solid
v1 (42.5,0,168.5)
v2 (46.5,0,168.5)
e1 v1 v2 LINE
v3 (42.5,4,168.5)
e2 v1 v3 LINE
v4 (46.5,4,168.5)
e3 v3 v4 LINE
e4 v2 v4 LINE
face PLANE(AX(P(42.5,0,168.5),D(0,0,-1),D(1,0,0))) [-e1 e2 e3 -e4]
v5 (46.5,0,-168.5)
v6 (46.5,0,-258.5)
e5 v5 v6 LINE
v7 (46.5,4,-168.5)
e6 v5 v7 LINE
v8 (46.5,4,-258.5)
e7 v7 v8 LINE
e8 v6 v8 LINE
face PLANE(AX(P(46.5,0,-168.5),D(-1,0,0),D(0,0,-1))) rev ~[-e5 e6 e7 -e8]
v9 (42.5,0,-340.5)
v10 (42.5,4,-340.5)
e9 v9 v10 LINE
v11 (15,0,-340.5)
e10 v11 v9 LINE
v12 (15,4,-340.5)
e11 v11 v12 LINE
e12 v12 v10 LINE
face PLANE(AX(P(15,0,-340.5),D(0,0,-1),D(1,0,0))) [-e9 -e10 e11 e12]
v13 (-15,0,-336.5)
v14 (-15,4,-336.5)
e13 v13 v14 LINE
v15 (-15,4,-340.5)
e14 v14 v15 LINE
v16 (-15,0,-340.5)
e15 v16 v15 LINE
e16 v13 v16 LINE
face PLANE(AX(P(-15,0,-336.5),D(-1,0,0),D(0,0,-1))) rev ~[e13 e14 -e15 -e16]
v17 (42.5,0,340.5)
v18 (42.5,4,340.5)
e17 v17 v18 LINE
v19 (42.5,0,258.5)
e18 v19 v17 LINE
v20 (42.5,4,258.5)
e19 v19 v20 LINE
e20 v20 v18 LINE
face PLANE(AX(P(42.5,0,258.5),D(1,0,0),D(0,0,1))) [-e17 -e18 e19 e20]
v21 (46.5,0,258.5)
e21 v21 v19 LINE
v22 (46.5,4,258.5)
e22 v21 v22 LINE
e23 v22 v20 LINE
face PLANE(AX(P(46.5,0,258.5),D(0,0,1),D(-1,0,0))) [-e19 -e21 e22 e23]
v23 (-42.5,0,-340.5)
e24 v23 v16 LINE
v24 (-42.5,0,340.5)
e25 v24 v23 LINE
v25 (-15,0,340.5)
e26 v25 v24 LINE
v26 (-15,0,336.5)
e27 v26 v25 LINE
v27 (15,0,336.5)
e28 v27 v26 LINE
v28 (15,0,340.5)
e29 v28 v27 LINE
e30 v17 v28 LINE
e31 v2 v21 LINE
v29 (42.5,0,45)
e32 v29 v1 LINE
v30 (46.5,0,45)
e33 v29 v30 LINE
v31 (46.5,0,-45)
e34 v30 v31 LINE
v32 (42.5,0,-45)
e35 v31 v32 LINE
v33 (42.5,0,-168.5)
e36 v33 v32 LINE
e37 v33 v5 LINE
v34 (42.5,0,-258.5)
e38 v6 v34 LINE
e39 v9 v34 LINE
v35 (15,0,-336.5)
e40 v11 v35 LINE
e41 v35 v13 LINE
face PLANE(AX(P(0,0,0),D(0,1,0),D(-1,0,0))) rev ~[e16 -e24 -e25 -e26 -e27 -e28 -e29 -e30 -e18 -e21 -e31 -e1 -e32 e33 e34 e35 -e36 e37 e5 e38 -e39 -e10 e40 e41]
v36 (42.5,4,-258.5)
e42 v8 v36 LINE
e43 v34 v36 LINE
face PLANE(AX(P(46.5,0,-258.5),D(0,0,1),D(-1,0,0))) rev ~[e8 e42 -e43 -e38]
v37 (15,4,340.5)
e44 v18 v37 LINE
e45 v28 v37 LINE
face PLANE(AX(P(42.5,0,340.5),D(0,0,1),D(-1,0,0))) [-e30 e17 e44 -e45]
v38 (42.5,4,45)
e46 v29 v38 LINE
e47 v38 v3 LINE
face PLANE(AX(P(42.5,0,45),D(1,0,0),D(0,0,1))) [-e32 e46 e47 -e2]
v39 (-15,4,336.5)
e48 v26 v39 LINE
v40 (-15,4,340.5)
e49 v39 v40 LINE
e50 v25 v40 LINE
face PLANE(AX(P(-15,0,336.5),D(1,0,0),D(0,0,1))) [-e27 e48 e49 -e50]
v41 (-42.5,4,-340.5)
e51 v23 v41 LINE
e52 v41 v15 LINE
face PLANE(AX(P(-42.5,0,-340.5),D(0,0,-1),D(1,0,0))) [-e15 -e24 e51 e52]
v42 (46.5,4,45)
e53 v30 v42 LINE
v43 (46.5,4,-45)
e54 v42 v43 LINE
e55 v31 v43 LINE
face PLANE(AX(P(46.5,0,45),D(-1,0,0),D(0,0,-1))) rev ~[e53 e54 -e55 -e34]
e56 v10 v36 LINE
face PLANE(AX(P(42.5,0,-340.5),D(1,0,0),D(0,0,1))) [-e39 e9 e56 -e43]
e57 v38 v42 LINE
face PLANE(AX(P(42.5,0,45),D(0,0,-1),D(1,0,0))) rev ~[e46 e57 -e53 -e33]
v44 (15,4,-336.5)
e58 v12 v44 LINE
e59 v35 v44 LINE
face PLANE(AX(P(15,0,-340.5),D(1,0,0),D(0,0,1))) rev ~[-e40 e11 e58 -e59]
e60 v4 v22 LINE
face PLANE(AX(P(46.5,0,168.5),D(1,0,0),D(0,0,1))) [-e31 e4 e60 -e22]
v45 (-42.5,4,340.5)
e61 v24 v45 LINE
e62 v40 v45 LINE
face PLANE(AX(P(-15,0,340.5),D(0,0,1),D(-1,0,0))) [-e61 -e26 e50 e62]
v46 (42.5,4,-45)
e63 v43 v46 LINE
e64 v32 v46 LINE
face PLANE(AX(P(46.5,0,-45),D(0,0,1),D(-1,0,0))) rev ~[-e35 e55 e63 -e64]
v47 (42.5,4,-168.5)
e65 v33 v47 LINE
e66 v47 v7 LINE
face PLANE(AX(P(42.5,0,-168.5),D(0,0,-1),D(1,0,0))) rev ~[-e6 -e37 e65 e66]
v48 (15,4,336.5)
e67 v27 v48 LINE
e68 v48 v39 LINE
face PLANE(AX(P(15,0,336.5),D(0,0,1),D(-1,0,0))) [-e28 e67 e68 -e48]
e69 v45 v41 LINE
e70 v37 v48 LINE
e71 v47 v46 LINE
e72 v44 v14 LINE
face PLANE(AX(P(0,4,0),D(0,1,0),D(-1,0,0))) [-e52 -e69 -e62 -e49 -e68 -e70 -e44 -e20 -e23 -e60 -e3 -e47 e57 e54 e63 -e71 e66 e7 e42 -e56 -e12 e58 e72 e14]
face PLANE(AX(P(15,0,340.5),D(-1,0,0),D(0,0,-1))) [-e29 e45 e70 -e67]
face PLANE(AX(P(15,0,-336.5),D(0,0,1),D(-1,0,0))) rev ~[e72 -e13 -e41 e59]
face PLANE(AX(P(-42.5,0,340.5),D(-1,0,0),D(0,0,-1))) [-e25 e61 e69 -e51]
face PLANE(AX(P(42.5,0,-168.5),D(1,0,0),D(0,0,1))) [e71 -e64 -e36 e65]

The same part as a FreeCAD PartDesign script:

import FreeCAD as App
import Part
import Sketcher


def add_polygon(sketch, points):
    """Adds a closed chain of lines whose ends are joined by coincident constraints."""
    first, n = sketch.GeometryCount, len(points)
    for a, b in zip(points, points[1:] + points[:1]):
        sketch.addGeometry(Part.LineSegment(App.Vector(*a, 0), App.Vector(*b, 0)), False)
    for i in range(n):
        sketch.addConstraint(Sketcher.Constraint("Coincident", first + i, 2, first + (i + 1) % n, 1))

doc = App.newDocument("Part")
body = doc.addObject("PartDesign::Body", "Body")

# Sketch on XZ plane
sketch1 = body.newObject("Sketcher::SketchObject", "Sketch")
sketch1.AttachmentSupport = (doc.getObject("XZ_Plane"), [""])
sketch1.MapMode = "FlatFace"
add_polygon(sketch1, [(15, 340.5), (42.5, 340.5), (42.5, 258.5), (46.5, 258.5), (46.5, 168.5), (42.5, 168.5), (42.5, 45), (46.5, 45), (46.5, -45), (42.5, -45), (42.5, -168.5), (46.5, -168.5), (46.5, -258.5), (42.5, -258.5), (42.5, -340.5), (15, -340.5), (15, -336.5), (-15, -336.5), (-15, -340.5), (-42.5, -340.5), (-42.5, 340.5), (-15, 340.5), (-15, 336.5), (15, 336.5)])  # lines 0-23
sketch1.addConstraint(Sketcher.Constraint("Horizontal", 0))
sketch1.addConstraint(Sketcher.Constraint("Vertical", 1))
sketch1.addConstraint(Sketcher.Constraint("Horizontal", 2))
sketch1.addConstraint(Sketcher.Constraint("Vertical", 3))
sketch1.addConstraint(Sketcher.Constraint("Horizontal", 4))
sketch1.addConstraint(Sketcher.Constraint("Vertical", 5))
sketch1.addConstraint(Sketcher.Constraint("Horizontal", 6))
sketch1.addConstraint(Sketcher.Constraint("Vertical", 7))
sketch1.addConstraint(Sketcher.Constraint("Horizontal", 8))
sketch1.addConstraint(Sketcher.Constraint("Vertical", 9))
sketch1.addConstraint(Sketcher.Constraint("Horizontal", 10))
sketch1.addConstraint(Sketcher.Constraint("Vertical", 11))
sketch1.addConstraint(Sketcher.Constraint("Horizontal", 12))
sketch1.addConstraint(Sketcher.Constraint("Vertical", 13))
sketch1.addConstraint(Sketcher.Constraint("Horizontal", 14))
sketch1.addConstraint(Sketcher.Constraint("Vertical", 15))
sketch1.addConstraint(Sketcher.Constraint("Horizontal", 16))
sketch1.addConstraint(Sketcher.Constraint("Vertical", 17))
sketch1.addConstraint(Sketcher.Constraint("Horizontal", 18))
sketch1.addConstraint(Sketcher.Constraint("Vertical", 19))
sketch1.addConstraint(Sketcher.Constraint("Horizontal", 20))
sketch1.addConstraint(Sketcher.Constraint("Vertical", 21))
sketch1.addConstraint(Sketcher.Constraint("Horizontal", 22))
sketch1.addConstraint(Sketcher.Constraint("Vertical", 23))
sketch1.addConstraint(Sketcher.Constraint("Symmetric", 0, 2, 18, 2, -1, 1))
sketch1.addConstraint(Sketcher.Constraint("Symmetric", 13, 2, 19, 2, -1, 1))
sketch1.addConstraint(Sketcher.Constraint("Symmetric", 15, 2, 21, 2, -1, 1))
sketch1.addConstraint(Sketcher.Constraint("Symmetric", 14, 2, 17, 2, -2))
sketch1.addConstraint(Sketcher.Constraint("Symmetric", 5, 2, 8, 2, -1))
sketch1.addConstraint(Sketcher.Constraint("Symmetric", 3, 2, 10, 2, -1))
sketch1.addConstraint(Sketcher.Constraint("Vertical", 1, 2, 4, 2))
sketch1.addConstraint(Sketcher.Constraint("Vertical", 3, 2, 6, 2))
sketch1.addConstraint(Sketcher.Constraint("Vertical", 15, 2, 22, 2))
sketch1.addConstraint(Sketcher.Constraint("Equal", 3, 7))
sketch1.addConstraint(Sketcher.Constraint("Equal", 7, 11))
sketch1.addConstraint(Sketcher.Constraint("Equal", 12, 15))
sketch1.addConstraint(Sketcher.Constraint("DistanceX", 2, 1, 2, 2, 4.0))
sketch1.addConstraint(Sketcher.Constraint("DistanceX", 16, 2, 16, 1, 30.0))
sketch1.addConstraint(Sketcher.Constraint("DistanceY", 3, 2, 3, 1, 90.0))
sketch1.addConstraint(Sketcher.Constraint("DistanceY", 19, 1, 19, 2, 681.0))
sketch1.addConstraint(Sketcher.Constraint("DistanceY", 5, 2, 5, 1, 123.5))
sketch1.addConstraint(Sketcher.Constraint("DistanceX", 18, 2, 13, 2, 85.0))
pad1 = body.newObject("PartDesign::Pad", "Pad")
pad1.Profile = sketch1
pad1.Length = 4
pad1.Reversed = True

doc.recompute()
